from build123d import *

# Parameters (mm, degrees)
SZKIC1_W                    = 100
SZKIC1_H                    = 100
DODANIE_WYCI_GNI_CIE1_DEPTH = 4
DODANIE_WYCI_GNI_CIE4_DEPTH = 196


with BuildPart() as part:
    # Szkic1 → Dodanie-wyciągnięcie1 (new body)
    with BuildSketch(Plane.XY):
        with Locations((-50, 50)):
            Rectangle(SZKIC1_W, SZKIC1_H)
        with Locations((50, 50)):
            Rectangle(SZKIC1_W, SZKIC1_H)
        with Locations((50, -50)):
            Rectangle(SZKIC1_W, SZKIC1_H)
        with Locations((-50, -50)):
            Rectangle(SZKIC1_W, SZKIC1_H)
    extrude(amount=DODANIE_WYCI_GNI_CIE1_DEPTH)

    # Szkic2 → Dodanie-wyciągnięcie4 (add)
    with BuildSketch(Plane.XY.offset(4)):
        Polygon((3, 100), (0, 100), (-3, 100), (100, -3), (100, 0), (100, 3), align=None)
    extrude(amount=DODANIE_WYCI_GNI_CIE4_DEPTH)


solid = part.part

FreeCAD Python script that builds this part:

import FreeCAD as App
import Part
import Sketcher

V = App.Vector
Q = App.Units.Quantity


def add_polygon(sketch, points):
    """Adds a closed chain of lines whose ends are joined by coincident constraints."""
    first, n = sketch.GeometryCount, len(points)
    for a, b in zip(points, points[1:] + points[:1]):
        sketch.addGeometry(Part.LineSegment(App.Vector(*a, 0), App.Vector(*b, 0)), False)
    for i in range(n):
        sketch.addConstraint(Sketcher.Constraint("Coincident", first + i, 2, first + (i + 1) % n, 1))

doc = App.newDocument("Part")
body = doc.addObject("PartDesign::Body", "Body")

# Sketch on XY plane
sketch1 = body.newObject("Sketcher::SketchObject", "Sketch")
sketch1.AttachmentSupport = (doc.getObject("XY_Plane"), [""])
sketch1.MapMode = "FlatFace"
add_polygon(sketch1, [(-100, 100), (-100, -100), (100, -100), (100, 100)])  # lines 0-3
sketch1.addConstraint([
    Sketcher.Constraint("Vertical", 0),
    Sketcher.Constraint("Horizontal", 1),
    Sketcher.Constraint("Vertical", 2),
    Sketcher.Constraint("Horizontal", 3),
    Sketcher.Constraint("Symmetric", 0, 2, 2, 2, -1, 1),
    Sketcher.Constraint("Equal", 3, 0),
    Sketcher.Constraint("DistanceX", 1, 1, 1, 2, Q("200 mm")),
])
pad1 = body.newObject("PartDesign::Pad", "Pad")
pad1.Profile = sketch1
pad1.Length = 4

# Sketch on XY plane
sketch2 = body.newObject("Sketcher::SketchObject", "Sketch001")
sketch2.AttachmentSupport = (doc.getObject("XY_Plane"), [""])
sketch2.MapMode = "FlatFace"
sketch2.AttachmentOffset = App.Placement(V(0, 0, 4), App.Rotation())
add_polygon(sketch2, [(3, 100), (-3, 100), (100, -3), (100, 3)])  # lines 0-3
sketch2.addConstraint([
    Sketcher.Constraint("Horizontal", 0),
    Sketcher.Constraint("Vertical", 2),
    Sketcher.Constraint("Parallel", 1, 3),
    Sketcher.Constraint("Equal", 0, 2),
    Sketcher.Constraint("DistanceX", 0, 2, 0, 1, Q("6 mm")),
    Sketcher.Constraint("DistanceX", 0, 2, -1, 1, Q("3 mm")),
    Sketcher.Constraint("DistanceY", -1, 1, 0, 2, Q("100 mm")),
    Sketcher.Constraint("DistanceX", -1, 1, 1, 2, Q("100 mm")),
])
pad2 = body.newObject("PartDesign::Pad", "Pad001")
pad2.Profile = sketch2
pad2.Length = 196

doc.recompute()
